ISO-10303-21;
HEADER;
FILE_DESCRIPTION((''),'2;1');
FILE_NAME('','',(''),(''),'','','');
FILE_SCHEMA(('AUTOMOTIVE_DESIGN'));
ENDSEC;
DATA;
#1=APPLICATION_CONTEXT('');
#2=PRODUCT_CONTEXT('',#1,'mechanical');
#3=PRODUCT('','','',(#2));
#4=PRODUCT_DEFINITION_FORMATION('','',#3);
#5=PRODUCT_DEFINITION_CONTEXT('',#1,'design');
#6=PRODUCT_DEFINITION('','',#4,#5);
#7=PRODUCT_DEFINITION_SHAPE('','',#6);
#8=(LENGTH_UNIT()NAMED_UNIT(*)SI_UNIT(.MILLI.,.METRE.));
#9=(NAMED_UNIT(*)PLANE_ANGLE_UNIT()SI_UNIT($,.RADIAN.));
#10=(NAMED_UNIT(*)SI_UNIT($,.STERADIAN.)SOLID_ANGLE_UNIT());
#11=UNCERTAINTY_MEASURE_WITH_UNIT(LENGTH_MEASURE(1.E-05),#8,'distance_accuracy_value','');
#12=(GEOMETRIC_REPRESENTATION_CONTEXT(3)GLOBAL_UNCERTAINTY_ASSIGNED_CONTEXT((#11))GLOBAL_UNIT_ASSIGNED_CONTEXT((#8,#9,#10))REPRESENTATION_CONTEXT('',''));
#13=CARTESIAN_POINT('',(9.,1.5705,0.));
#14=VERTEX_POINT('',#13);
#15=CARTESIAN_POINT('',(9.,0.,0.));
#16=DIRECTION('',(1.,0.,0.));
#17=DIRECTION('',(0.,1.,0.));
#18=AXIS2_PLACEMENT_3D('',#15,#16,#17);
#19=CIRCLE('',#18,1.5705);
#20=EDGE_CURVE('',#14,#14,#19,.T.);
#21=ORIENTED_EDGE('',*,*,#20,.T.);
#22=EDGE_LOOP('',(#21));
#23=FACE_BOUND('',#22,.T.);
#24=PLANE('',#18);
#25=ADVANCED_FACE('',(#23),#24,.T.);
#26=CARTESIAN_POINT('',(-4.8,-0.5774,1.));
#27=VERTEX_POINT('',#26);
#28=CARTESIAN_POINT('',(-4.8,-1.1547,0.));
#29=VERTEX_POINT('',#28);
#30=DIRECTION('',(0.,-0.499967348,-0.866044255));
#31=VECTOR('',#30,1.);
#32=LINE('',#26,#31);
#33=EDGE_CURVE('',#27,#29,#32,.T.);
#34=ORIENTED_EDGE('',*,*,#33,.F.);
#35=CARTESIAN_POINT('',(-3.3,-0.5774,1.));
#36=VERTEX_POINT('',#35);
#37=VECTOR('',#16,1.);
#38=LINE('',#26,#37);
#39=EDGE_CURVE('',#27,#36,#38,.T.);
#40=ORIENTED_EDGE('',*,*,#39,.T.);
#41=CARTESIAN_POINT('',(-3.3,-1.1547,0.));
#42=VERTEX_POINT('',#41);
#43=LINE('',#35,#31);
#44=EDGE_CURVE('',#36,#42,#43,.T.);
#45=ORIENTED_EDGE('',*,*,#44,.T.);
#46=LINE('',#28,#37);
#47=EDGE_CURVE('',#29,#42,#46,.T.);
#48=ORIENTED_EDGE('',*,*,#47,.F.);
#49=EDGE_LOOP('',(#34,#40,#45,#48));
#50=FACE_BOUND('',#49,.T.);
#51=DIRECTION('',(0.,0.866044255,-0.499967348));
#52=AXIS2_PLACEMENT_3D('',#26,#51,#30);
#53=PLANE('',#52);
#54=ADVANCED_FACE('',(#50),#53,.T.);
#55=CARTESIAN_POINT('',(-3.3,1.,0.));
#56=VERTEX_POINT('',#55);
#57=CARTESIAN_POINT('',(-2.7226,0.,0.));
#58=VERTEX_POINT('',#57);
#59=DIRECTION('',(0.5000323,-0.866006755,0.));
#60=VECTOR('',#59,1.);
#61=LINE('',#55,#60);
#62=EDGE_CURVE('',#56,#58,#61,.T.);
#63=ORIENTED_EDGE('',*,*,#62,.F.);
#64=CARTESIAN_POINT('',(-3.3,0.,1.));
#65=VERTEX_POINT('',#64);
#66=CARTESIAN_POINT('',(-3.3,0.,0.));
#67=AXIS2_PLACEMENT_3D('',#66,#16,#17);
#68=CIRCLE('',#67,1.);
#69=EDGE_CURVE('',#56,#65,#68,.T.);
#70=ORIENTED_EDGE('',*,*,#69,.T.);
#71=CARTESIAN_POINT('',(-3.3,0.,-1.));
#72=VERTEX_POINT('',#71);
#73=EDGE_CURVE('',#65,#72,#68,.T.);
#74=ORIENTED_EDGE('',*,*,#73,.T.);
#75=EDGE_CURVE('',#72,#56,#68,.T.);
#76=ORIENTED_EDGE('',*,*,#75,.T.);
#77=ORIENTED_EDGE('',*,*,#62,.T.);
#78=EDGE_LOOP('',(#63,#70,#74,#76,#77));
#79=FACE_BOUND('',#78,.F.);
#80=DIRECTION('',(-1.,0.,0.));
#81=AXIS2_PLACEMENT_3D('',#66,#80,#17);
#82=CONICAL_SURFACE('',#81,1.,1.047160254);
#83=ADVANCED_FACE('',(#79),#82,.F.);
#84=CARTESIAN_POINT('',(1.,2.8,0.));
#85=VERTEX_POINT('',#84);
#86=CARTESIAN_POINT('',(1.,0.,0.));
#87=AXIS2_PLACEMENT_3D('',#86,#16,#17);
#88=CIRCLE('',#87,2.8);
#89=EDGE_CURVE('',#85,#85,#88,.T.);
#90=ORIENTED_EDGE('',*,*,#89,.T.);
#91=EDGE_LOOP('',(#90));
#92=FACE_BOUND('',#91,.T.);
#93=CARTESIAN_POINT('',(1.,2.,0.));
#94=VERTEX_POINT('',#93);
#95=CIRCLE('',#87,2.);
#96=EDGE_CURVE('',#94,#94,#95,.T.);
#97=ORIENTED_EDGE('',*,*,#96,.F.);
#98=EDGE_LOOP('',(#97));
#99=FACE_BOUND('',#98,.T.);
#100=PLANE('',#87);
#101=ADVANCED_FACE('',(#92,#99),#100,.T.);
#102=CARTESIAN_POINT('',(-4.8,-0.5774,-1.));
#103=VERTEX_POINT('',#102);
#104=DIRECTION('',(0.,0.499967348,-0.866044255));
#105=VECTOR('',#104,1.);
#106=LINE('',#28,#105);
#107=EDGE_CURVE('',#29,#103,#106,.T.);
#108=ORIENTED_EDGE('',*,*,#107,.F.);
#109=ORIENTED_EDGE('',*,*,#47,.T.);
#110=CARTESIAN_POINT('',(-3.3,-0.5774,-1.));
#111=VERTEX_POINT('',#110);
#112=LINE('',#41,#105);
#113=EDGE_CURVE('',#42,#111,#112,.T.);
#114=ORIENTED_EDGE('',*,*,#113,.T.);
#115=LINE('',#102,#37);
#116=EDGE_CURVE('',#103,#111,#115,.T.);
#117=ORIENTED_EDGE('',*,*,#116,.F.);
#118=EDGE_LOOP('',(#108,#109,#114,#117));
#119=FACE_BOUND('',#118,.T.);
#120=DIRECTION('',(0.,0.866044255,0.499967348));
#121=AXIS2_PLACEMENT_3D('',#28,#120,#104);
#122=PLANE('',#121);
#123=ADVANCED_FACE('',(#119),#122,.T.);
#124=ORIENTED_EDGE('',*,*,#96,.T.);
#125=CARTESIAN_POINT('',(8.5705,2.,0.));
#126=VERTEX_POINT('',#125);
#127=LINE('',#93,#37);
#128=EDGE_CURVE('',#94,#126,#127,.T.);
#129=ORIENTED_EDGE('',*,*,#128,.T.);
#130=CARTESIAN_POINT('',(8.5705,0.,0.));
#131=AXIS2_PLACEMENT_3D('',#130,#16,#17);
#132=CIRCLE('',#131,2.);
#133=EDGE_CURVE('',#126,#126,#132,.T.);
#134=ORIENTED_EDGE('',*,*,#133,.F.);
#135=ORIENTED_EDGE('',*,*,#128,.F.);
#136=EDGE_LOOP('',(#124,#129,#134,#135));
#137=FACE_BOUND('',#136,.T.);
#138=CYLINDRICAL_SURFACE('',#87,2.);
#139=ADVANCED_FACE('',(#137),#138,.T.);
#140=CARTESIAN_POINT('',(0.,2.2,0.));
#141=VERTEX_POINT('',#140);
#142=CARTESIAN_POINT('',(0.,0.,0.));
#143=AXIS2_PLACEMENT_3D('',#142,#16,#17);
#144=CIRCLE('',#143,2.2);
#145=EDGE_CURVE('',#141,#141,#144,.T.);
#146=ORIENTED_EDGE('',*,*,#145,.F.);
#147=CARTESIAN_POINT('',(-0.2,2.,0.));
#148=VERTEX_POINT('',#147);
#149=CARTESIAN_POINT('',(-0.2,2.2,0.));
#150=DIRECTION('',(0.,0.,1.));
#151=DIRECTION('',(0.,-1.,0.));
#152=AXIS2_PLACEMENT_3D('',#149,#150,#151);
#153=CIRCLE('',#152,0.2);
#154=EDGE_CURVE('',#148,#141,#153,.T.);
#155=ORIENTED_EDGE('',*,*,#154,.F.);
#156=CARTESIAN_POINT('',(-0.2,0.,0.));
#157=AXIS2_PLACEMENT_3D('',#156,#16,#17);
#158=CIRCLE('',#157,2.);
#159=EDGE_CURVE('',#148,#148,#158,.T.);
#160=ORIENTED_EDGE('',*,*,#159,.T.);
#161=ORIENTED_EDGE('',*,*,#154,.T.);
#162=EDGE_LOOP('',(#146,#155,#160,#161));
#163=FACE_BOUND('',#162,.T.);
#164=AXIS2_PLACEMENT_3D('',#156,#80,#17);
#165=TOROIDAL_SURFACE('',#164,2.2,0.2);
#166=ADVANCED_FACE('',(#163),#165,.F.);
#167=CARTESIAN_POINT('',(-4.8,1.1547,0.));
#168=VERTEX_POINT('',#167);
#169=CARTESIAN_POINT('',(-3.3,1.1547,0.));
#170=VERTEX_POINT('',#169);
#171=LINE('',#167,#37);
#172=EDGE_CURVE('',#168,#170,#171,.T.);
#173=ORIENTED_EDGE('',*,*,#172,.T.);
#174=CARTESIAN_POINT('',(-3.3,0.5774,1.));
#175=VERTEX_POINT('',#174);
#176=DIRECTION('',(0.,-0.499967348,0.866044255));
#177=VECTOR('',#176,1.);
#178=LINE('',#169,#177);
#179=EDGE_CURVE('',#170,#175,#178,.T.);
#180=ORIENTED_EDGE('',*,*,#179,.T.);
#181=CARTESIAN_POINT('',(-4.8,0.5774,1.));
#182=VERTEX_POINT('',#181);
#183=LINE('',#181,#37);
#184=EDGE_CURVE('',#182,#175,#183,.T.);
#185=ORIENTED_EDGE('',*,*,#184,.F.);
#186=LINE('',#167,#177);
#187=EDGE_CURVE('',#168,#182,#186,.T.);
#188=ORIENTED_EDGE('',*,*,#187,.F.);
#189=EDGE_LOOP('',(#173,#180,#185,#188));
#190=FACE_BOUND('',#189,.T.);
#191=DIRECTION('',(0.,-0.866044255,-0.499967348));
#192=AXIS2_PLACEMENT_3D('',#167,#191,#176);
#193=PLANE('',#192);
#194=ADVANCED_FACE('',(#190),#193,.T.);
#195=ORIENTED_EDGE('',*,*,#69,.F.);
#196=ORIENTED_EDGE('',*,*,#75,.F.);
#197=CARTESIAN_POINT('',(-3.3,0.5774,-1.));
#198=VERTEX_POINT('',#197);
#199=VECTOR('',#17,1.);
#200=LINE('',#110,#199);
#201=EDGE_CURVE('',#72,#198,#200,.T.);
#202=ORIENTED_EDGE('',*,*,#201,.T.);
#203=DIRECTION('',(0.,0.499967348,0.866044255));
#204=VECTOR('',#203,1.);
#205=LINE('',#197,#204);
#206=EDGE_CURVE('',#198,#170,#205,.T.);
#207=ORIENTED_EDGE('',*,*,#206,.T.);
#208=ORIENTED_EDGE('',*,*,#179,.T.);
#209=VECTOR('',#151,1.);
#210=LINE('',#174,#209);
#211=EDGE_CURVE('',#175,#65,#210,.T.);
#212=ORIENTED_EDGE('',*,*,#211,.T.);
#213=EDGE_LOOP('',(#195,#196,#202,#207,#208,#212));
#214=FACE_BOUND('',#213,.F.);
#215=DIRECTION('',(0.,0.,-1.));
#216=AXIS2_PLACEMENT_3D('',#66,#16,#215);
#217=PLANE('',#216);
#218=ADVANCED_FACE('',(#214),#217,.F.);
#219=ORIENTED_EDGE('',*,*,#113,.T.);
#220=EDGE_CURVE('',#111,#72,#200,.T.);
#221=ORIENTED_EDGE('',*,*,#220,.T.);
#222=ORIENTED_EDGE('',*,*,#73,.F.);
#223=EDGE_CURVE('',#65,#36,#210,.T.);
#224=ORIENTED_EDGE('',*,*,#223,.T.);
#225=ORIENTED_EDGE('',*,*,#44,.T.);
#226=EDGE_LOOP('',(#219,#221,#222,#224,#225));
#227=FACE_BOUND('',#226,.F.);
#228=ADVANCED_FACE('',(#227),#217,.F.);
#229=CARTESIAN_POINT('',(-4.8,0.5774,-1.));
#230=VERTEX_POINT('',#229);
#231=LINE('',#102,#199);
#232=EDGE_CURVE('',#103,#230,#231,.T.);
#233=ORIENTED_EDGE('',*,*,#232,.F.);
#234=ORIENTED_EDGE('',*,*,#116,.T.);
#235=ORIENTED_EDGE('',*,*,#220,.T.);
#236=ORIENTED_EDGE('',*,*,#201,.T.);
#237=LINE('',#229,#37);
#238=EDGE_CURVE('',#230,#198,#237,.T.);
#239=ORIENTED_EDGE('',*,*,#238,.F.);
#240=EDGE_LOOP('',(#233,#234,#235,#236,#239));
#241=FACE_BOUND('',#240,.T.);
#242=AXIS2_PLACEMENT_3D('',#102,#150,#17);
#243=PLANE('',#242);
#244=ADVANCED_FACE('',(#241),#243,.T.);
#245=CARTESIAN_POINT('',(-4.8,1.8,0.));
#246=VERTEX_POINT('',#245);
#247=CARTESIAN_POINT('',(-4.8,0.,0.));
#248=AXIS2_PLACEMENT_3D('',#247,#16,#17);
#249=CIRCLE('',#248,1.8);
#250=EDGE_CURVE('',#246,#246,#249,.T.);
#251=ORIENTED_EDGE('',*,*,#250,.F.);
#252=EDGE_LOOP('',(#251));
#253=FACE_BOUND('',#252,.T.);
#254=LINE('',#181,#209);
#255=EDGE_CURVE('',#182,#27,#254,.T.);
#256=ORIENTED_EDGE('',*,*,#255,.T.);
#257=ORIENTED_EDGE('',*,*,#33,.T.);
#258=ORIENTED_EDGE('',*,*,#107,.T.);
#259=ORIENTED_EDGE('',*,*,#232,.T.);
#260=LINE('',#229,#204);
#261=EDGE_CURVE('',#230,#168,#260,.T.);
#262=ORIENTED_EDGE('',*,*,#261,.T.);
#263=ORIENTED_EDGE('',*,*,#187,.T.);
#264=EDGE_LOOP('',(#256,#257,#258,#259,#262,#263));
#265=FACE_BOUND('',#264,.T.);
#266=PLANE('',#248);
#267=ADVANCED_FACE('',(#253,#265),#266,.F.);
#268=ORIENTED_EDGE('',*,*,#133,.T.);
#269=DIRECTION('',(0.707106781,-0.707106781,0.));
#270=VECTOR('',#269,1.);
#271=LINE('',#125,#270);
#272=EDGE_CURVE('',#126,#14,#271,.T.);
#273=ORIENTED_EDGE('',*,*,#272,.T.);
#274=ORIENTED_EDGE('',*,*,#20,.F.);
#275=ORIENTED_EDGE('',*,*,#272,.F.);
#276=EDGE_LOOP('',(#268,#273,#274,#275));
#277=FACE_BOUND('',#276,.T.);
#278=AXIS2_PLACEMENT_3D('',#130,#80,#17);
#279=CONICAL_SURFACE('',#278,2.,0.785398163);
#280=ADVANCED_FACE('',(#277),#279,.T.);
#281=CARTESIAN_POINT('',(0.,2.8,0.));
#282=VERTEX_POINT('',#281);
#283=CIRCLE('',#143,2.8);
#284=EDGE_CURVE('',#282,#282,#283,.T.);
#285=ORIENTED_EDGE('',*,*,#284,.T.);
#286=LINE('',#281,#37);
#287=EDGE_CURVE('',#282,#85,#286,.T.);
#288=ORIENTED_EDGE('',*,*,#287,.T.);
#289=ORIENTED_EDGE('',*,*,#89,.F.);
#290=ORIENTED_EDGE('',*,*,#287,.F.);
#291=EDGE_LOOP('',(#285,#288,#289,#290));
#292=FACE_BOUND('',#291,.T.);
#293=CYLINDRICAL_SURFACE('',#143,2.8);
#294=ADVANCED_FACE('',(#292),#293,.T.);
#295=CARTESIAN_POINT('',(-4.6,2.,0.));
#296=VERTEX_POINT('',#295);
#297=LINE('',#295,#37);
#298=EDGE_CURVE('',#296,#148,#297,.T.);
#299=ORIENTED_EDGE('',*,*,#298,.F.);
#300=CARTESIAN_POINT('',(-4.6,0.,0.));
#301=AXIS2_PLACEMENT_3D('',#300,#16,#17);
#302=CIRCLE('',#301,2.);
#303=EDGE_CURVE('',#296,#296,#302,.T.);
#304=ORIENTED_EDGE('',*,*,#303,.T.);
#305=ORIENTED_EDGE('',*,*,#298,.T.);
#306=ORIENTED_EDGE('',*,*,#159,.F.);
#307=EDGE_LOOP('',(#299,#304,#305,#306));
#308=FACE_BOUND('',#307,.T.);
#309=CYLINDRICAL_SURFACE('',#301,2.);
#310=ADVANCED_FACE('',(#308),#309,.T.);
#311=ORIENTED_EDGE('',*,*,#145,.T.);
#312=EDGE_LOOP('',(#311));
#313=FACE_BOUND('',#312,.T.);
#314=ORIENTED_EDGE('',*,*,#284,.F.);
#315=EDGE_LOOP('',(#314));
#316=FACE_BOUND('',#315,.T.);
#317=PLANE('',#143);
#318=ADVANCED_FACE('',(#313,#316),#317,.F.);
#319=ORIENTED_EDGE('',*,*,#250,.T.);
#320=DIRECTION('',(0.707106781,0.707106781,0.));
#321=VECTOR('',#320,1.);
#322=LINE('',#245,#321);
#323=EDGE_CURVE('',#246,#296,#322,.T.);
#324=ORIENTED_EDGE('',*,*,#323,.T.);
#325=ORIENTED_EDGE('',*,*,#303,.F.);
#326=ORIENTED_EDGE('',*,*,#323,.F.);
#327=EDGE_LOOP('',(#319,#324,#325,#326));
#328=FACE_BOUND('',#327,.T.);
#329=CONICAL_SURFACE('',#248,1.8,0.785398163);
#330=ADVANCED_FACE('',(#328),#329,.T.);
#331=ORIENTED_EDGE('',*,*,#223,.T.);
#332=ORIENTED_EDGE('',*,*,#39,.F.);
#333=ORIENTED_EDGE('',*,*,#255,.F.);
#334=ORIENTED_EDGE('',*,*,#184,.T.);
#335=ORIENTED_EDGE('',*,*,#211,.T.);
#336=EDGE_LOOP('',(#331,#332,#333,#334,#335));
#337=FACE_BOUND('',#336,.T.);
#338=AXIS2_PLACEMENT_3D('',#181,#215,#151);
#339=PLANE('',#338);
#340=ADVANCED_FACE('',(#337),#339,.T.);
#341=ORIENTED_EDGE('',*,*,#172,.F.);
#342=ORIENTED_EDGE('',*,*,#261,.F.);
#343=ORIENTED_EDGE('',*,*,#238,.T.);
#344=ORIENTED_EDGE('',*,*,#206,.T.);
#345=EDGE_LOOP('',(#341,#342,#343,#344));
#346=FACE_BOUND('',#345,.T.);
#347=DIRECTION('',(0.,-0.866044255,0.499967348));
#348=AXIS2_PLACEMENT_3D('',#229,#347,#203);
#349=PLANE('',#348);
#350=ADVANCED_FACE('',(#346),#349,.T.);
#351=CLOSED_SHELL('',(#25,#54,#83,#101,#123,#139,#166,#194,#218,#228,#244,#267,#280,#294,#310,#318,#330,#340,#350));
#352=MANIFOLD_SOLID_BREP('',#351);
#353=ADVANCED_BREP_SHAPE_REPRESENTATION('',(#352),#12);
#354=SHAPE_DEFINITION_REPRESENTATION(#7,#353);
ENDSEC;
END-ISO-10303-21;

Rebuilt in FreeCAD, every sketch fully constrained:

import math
import FreeCAD as App
import Part
import Sketcher
from FreeCAD import Vector
Q = App.Units.Quantity

doc = App.newDocument("Part")
params = doc.addObject("Spreadsheet::Sheet", "Params")
for row, (alias, value) in enumerate([
    ("sketch1_radius", "0.2 mm"),
    ("sketch1_width", "1 mm"),
    ("sketch1_width2", "5.8 mm"),
    ("sketch1_width3", "4.4 mm"),
    ("sketch1_height", "2.8 mm"),
    ("revolution_angle", "360 deg"),
    ("sketch2_width", "8 mm"),
    ("sketch2_height", "2 mm"),
    ("revolution2_angle", "360 deg"),
    ("pocket1_length", "1.5 mm"),
    ("sketch4_height", "1 mm"),
    ("groove_angle", "360 deg"),
], start=1):
    params.set(f"A{row}", alias)
    params.set(f"B{row}", "=" + value)
    params.setAlias(f"B{row}", alias)

body = doc.addObject("PartDesign::Body", "Body")

# Sketch on XY plane
sketch1 = doc.addObject("Sketcher::SketchObject", "Sketch")
body.addObject(sketch1)
sketch1.AttachmentSupport = (doc.XY_Plane, [""])
sketch1.MapMode = "FlatFace"
sketch1.addGeometry([
    Part.LineSegment(Vector(-4.8, 0, 0), Vector(1, 0, 0)),  # 0
    Part.LineSegment(Vector(1, 0, 0), Vector(1, 2.8, 0)),  # 1
    Part.LineSegment(Vector(1, 2.8, 0), Vector(0, 2.8, 0)),  # 2
    Part.LineSegment(Vector(0, 2.8, 0), Vector(0, 2.2, 0)),  # 3
    Part.ArcOfCircle(Part.Circle(Vector(-0.2, 2.2, 0), Vector(0, 0, 1), 0.2), math.radians(-90), math.radians(0)),  # 4
    Part.LineSegment(Vector(-0.2, 2, 0), Vector(-4.6, 2, 0)),  # 5
    Part.LineSegment(Vector(-4.6, 2, 0), Vector(-4.8, 1.8, 0)),  # 6
    Part.LineSegment(Vector(-4.8, 1.8, 0), Vector(-4.8, 0, 0)),  # 7
], False)
sketch1.addConstraint([
    Sketcher.Constraint("Coincident", 0, 2, 1, 1),
    Sketcher.Constraint("Coincident", 1, 2, 2, 1),
    Sketcher.Constraint("Coincident", 2, 2, 3, 1),
    Sketcher.Constraint("Tangent", 3, 2, 4, 2),
    Sketcher.Constraint("Tangent", 4, 1, 5, 1),
    Sketcher.Constraint("Coincident", 5, 2, 6, 1),
    Sketcher.Constraint("Coincident", 6, 2, 7, 1),
    Sketcher.Constraint("Coincident", 7, 2, 0, 1),
    Sketcher.Constraint("Horizontal", 0),
    Sketcher.Constraint("Vertical", 1),
    Sketcher.Constraint("Horizontal", 2),
    Sketcher.Constraint("Vertical", 3),
    Sketcher.Constraint("Horizontal", 5),
    Sketcher.Constraint("Vertical", 7),
    Sketcher.Constraint("PointOnObject", 0, 2, -1),
    Sketcher.Constraint("PointOnObject", 2, 2, -2),
    Sketcher.Constraint("Radius", 4, 0.2),
    Sketcher.Constraint("DistanceX", 2, 2, 2, 1, 1.0),
    Sketcher.Constraint("Angle", 6, Q("-135 deg")),
    Sketcher.Constraint("DistanceX", 0, 1, 0, 2, 5.8),
    Sketcher.Constraint("DistanceX", 5, 2, 5, 1, 4.4),
    Sketcher.Constraint("DistanceY", 1, 1, 1, 2, 2.8),
    Sketcher.Constraint("DistanceY", 3, 2, 3, 1, 0.6),
])
sketch1.setExpression("Constraints[16]", "Params.sketch1_radius")
sketch1.setExpression("Constraints[17]", "Params.sketch1_width")
sketch1.setExpression("Constraints[19]", "Params.sketch1_width2")
sketch1.setExpression("Constraints[20]", "Params.sketch1_width3")
sketch1.setExpression("Constraints[21]", "Params.sketch1_height")
revolution = doc.addObject("PartDesign::Revolution", "Revolution")
body.addObject(revolution)
revolution.Profile = sketch1
revolution.ReferenceAxis = (sketch1, ["H_Axis"])
revolution.setExpression("Angle", "Params.revolution_angle")

# Sketch on XY plane
sketch2 = doc.addObject("Sketcher::SketchObject", "Sketch001")
body.addObject(sketch2)
sketch2.AttachmentSupport = (doc.XY_Plane, [""])
sketch2.MapMode = "FlatFace"
sketch2.addGeometry([
    Part.LineSegment(Vector(1, 0, 0), Vector(9, 0, 0)),  # 0
    Part.LineSegment(Vector(9, 0, 0), Vector(9, 1.6, 0)),  # 1
    Part.LineSegment(Vector(9, 1.6, 0), Vector(8.6, 2, 0)),  # 2
    Part.LineSegment(Vector(8.6, 2, 0), Vector(1, 2, 0)),  # 3
    Part.LineSegment(Vector(1, 2, 0), Vector(1, 0, 0)),  # 4
], False)
sketch2.addConstraint([
    Sketcher.Constraint("Coincident", 0, 2, 1, 1),
    Sketcher.Constraint("Coincident", 1, 2, 2, 1),
    Sketcher.Constraint("Coincident", 2, 2, 3, 1),
    Sketcher.Constraint("Coincident", 3, 2, 4, 1),
    Sketcher.Constraint("Coincident", 4, 2, 0, 1),
    Sketcher.Constraint("Horizontal", 0),
    Sketcher.Constraint("Vertical", 1),
    Sketcher.Constraint("Horizontal", 3),
    Sketcher.Constraint("Vertical", 4),
    Sketcher.Constraint("PointOnObject", 0, 2, -1),
    Sketcher.Constraint("DistanceX", 0, 1, 0, 2, 8.0),
    Sketcher.Constraint("DistanceY", 4, 2, 4, 1, 2.0),
    Sketcher.Constraint("Angle", 2, Q("135 deg")),
    Sketcher.Constraint("DistanceX", -1, 1, 0, 2, 9.0),
    Sketcher.Constraint("DistanceX", 3, 2, 3, 1, 7.5705),
])
sketch2.setExpression("Constraints[10]", "Params.sketch2_width")
sketch2.setExpression("Constraints[11]", "Params.sketch2_height")
revolution2 = doc.addObject("PartDesign::Revolution", "Revolution001")
body.addObject(revolution2)
revolution2.Profile = sketch2
revolution2.ReferenceAxis = (sketch2, ["H_Axis"])
revolution2.setExpression("Angle", "Params.revolution2_angle")

# Sketch on YZ plane
sketch3 = doc.addObject("Sketcher::SketchObject", "Sketch002")
body.addObject(sketch3)
sketch3.AttachmentSupport = (doc.YZ_Plane, [""])
sketch3.MapMode = "FlatFace"
sketch3.AttachmentOffset = App.Placement(Vector(0, 0, -4.8), App.Rotation())
sketch3.addGeometry([
    Part.LineSegment(Vector(0.6, 1, 0), Vector(-0.6, 1, 0)),  # 0
    Part.LineSegment(Vector(-0.6, 1, 0), Vector(-1.2, 0, 0)),  # 1
    Part.LineSegment(Vector(-1.2, 0, 0), Vector(-0.6, -1, 0)),  # 2
    Part.LineSegment(Vector(-0.6, -1, 0), Vector(0.6, -1, 0)),  # 3
    Part.LineSegment(Vector(0.6, -1, 0), Vector(1.2, 0, 0)),  # 4
    Part.LineSegment(Vector(1.2, 0, 0), Vector(0.6, 1, 0)),  # 5
], False)
sketch3.addConstraint([
    Sketcher.Constraint("Coincident", 0, 2, 1, 1),
    Sketcher.Constraint("Coincident", 1, 2, 2, 1),
    Sketcher.Constraint("Coincident", 2, 2, 3, 1),
    Sketcher.Constraint("Coincident", 3, 2, 4, 1),
    Sketcher.Constraint("Coincident", 4, 2, 5, 1),
    Sketcher.Constraint("Coincident", 5, 2, 0, 1),
    Sketcher.Constraint("Horizontal", 0),
    Sketcher.Constraint("Horizontal", 3),
    Sketcher.Constraint("Symmetric", 0, 2, 3, 2, -1, 1),
    Sketcher.Constraint("Symmetric", 1, 2, 4, 2, -1, 1),
    Sketcher.Constraint("PointOnObject", 1, 2, -1),
    Sketcher.Constraint("Parallel", 2, 5),
    Sketcher.Constraint("Vertical", 0, 2, 2, 2),
    Sketcher.Constraint("DistanceY", -1, 1, 0, 2, 1.0),
    Sketcher.Constraint("DistanceX", 0, 2, 0, 1, 1.1548),
    Sketcher.Constraint("DistanceX", 1, 2, 3, 2, 1.732),
])
pocket1 = doc.addObject("PartDesign::Pocket", "Pocket")
body.addObject(pocket1)
pocket1.Profile = sketch3
pocket1.setExpression("Length", "Params.pocket1_length")
pocket1.Reversed = True

# Sketch on XY plane
sketch4 = doc.addObject("Sketcher::SketchObject", "Sketch003")
body.addObject(sketch4)
sketch4.AttachmentSupport = (doc.XY_Plane, [""])
sketch4.MapMode = "FlatFace"
sketch4.addGeometry([
    Part.LineSegment(Vector(-3.3, 0, 0), Vector(-2.7, 0, 0)),
    Part.LineSegment(Vector(-2.7, 0, 0), Vector(-3.3, 1, 0)),
    Part.LineSegment(Vector(-3.3, 1, 0), Vector(-3.3, 0, 0)),
], False)
sketch4.addConstraint([
    Sketcher.Constraint("Coincident", 0, 2, 1, 1),
    Sketcher.Constraint("Coincident", 1, 2, 2, 1),
    Sketcher.Constraint("Coincident", 2, 2, 0, 1),
    Sketcher.Constraint("Horizontal", 0),
    Sketcher.Constraint("Vertical", 2),
    Sketcher.Constraint("PointOnObject", 0, 2, -1),
    Sketcher.Constraint("DistanceY", 2, 2, 2, 1, 1.0),
    Sketcher.Constraint("DistanceX", 1, 2, -1, 1, 3.3),
    Sketcher.Constraint("DistanceX", 0, 1, 0, 2, 0.5774),
])
sketch4.setExpression("Constraints[6]", "Params.sketch4_height")
groove = doc.addObject("PartDesign::Groove", "Groove")
body.addObject(groove)
groove.Profile = sketch4
groove.ReferenceAxis = (sketch4, ["H_Axis"])
groove.setExpression("Angle", "Params.groove_angle")

doc.recompute()
